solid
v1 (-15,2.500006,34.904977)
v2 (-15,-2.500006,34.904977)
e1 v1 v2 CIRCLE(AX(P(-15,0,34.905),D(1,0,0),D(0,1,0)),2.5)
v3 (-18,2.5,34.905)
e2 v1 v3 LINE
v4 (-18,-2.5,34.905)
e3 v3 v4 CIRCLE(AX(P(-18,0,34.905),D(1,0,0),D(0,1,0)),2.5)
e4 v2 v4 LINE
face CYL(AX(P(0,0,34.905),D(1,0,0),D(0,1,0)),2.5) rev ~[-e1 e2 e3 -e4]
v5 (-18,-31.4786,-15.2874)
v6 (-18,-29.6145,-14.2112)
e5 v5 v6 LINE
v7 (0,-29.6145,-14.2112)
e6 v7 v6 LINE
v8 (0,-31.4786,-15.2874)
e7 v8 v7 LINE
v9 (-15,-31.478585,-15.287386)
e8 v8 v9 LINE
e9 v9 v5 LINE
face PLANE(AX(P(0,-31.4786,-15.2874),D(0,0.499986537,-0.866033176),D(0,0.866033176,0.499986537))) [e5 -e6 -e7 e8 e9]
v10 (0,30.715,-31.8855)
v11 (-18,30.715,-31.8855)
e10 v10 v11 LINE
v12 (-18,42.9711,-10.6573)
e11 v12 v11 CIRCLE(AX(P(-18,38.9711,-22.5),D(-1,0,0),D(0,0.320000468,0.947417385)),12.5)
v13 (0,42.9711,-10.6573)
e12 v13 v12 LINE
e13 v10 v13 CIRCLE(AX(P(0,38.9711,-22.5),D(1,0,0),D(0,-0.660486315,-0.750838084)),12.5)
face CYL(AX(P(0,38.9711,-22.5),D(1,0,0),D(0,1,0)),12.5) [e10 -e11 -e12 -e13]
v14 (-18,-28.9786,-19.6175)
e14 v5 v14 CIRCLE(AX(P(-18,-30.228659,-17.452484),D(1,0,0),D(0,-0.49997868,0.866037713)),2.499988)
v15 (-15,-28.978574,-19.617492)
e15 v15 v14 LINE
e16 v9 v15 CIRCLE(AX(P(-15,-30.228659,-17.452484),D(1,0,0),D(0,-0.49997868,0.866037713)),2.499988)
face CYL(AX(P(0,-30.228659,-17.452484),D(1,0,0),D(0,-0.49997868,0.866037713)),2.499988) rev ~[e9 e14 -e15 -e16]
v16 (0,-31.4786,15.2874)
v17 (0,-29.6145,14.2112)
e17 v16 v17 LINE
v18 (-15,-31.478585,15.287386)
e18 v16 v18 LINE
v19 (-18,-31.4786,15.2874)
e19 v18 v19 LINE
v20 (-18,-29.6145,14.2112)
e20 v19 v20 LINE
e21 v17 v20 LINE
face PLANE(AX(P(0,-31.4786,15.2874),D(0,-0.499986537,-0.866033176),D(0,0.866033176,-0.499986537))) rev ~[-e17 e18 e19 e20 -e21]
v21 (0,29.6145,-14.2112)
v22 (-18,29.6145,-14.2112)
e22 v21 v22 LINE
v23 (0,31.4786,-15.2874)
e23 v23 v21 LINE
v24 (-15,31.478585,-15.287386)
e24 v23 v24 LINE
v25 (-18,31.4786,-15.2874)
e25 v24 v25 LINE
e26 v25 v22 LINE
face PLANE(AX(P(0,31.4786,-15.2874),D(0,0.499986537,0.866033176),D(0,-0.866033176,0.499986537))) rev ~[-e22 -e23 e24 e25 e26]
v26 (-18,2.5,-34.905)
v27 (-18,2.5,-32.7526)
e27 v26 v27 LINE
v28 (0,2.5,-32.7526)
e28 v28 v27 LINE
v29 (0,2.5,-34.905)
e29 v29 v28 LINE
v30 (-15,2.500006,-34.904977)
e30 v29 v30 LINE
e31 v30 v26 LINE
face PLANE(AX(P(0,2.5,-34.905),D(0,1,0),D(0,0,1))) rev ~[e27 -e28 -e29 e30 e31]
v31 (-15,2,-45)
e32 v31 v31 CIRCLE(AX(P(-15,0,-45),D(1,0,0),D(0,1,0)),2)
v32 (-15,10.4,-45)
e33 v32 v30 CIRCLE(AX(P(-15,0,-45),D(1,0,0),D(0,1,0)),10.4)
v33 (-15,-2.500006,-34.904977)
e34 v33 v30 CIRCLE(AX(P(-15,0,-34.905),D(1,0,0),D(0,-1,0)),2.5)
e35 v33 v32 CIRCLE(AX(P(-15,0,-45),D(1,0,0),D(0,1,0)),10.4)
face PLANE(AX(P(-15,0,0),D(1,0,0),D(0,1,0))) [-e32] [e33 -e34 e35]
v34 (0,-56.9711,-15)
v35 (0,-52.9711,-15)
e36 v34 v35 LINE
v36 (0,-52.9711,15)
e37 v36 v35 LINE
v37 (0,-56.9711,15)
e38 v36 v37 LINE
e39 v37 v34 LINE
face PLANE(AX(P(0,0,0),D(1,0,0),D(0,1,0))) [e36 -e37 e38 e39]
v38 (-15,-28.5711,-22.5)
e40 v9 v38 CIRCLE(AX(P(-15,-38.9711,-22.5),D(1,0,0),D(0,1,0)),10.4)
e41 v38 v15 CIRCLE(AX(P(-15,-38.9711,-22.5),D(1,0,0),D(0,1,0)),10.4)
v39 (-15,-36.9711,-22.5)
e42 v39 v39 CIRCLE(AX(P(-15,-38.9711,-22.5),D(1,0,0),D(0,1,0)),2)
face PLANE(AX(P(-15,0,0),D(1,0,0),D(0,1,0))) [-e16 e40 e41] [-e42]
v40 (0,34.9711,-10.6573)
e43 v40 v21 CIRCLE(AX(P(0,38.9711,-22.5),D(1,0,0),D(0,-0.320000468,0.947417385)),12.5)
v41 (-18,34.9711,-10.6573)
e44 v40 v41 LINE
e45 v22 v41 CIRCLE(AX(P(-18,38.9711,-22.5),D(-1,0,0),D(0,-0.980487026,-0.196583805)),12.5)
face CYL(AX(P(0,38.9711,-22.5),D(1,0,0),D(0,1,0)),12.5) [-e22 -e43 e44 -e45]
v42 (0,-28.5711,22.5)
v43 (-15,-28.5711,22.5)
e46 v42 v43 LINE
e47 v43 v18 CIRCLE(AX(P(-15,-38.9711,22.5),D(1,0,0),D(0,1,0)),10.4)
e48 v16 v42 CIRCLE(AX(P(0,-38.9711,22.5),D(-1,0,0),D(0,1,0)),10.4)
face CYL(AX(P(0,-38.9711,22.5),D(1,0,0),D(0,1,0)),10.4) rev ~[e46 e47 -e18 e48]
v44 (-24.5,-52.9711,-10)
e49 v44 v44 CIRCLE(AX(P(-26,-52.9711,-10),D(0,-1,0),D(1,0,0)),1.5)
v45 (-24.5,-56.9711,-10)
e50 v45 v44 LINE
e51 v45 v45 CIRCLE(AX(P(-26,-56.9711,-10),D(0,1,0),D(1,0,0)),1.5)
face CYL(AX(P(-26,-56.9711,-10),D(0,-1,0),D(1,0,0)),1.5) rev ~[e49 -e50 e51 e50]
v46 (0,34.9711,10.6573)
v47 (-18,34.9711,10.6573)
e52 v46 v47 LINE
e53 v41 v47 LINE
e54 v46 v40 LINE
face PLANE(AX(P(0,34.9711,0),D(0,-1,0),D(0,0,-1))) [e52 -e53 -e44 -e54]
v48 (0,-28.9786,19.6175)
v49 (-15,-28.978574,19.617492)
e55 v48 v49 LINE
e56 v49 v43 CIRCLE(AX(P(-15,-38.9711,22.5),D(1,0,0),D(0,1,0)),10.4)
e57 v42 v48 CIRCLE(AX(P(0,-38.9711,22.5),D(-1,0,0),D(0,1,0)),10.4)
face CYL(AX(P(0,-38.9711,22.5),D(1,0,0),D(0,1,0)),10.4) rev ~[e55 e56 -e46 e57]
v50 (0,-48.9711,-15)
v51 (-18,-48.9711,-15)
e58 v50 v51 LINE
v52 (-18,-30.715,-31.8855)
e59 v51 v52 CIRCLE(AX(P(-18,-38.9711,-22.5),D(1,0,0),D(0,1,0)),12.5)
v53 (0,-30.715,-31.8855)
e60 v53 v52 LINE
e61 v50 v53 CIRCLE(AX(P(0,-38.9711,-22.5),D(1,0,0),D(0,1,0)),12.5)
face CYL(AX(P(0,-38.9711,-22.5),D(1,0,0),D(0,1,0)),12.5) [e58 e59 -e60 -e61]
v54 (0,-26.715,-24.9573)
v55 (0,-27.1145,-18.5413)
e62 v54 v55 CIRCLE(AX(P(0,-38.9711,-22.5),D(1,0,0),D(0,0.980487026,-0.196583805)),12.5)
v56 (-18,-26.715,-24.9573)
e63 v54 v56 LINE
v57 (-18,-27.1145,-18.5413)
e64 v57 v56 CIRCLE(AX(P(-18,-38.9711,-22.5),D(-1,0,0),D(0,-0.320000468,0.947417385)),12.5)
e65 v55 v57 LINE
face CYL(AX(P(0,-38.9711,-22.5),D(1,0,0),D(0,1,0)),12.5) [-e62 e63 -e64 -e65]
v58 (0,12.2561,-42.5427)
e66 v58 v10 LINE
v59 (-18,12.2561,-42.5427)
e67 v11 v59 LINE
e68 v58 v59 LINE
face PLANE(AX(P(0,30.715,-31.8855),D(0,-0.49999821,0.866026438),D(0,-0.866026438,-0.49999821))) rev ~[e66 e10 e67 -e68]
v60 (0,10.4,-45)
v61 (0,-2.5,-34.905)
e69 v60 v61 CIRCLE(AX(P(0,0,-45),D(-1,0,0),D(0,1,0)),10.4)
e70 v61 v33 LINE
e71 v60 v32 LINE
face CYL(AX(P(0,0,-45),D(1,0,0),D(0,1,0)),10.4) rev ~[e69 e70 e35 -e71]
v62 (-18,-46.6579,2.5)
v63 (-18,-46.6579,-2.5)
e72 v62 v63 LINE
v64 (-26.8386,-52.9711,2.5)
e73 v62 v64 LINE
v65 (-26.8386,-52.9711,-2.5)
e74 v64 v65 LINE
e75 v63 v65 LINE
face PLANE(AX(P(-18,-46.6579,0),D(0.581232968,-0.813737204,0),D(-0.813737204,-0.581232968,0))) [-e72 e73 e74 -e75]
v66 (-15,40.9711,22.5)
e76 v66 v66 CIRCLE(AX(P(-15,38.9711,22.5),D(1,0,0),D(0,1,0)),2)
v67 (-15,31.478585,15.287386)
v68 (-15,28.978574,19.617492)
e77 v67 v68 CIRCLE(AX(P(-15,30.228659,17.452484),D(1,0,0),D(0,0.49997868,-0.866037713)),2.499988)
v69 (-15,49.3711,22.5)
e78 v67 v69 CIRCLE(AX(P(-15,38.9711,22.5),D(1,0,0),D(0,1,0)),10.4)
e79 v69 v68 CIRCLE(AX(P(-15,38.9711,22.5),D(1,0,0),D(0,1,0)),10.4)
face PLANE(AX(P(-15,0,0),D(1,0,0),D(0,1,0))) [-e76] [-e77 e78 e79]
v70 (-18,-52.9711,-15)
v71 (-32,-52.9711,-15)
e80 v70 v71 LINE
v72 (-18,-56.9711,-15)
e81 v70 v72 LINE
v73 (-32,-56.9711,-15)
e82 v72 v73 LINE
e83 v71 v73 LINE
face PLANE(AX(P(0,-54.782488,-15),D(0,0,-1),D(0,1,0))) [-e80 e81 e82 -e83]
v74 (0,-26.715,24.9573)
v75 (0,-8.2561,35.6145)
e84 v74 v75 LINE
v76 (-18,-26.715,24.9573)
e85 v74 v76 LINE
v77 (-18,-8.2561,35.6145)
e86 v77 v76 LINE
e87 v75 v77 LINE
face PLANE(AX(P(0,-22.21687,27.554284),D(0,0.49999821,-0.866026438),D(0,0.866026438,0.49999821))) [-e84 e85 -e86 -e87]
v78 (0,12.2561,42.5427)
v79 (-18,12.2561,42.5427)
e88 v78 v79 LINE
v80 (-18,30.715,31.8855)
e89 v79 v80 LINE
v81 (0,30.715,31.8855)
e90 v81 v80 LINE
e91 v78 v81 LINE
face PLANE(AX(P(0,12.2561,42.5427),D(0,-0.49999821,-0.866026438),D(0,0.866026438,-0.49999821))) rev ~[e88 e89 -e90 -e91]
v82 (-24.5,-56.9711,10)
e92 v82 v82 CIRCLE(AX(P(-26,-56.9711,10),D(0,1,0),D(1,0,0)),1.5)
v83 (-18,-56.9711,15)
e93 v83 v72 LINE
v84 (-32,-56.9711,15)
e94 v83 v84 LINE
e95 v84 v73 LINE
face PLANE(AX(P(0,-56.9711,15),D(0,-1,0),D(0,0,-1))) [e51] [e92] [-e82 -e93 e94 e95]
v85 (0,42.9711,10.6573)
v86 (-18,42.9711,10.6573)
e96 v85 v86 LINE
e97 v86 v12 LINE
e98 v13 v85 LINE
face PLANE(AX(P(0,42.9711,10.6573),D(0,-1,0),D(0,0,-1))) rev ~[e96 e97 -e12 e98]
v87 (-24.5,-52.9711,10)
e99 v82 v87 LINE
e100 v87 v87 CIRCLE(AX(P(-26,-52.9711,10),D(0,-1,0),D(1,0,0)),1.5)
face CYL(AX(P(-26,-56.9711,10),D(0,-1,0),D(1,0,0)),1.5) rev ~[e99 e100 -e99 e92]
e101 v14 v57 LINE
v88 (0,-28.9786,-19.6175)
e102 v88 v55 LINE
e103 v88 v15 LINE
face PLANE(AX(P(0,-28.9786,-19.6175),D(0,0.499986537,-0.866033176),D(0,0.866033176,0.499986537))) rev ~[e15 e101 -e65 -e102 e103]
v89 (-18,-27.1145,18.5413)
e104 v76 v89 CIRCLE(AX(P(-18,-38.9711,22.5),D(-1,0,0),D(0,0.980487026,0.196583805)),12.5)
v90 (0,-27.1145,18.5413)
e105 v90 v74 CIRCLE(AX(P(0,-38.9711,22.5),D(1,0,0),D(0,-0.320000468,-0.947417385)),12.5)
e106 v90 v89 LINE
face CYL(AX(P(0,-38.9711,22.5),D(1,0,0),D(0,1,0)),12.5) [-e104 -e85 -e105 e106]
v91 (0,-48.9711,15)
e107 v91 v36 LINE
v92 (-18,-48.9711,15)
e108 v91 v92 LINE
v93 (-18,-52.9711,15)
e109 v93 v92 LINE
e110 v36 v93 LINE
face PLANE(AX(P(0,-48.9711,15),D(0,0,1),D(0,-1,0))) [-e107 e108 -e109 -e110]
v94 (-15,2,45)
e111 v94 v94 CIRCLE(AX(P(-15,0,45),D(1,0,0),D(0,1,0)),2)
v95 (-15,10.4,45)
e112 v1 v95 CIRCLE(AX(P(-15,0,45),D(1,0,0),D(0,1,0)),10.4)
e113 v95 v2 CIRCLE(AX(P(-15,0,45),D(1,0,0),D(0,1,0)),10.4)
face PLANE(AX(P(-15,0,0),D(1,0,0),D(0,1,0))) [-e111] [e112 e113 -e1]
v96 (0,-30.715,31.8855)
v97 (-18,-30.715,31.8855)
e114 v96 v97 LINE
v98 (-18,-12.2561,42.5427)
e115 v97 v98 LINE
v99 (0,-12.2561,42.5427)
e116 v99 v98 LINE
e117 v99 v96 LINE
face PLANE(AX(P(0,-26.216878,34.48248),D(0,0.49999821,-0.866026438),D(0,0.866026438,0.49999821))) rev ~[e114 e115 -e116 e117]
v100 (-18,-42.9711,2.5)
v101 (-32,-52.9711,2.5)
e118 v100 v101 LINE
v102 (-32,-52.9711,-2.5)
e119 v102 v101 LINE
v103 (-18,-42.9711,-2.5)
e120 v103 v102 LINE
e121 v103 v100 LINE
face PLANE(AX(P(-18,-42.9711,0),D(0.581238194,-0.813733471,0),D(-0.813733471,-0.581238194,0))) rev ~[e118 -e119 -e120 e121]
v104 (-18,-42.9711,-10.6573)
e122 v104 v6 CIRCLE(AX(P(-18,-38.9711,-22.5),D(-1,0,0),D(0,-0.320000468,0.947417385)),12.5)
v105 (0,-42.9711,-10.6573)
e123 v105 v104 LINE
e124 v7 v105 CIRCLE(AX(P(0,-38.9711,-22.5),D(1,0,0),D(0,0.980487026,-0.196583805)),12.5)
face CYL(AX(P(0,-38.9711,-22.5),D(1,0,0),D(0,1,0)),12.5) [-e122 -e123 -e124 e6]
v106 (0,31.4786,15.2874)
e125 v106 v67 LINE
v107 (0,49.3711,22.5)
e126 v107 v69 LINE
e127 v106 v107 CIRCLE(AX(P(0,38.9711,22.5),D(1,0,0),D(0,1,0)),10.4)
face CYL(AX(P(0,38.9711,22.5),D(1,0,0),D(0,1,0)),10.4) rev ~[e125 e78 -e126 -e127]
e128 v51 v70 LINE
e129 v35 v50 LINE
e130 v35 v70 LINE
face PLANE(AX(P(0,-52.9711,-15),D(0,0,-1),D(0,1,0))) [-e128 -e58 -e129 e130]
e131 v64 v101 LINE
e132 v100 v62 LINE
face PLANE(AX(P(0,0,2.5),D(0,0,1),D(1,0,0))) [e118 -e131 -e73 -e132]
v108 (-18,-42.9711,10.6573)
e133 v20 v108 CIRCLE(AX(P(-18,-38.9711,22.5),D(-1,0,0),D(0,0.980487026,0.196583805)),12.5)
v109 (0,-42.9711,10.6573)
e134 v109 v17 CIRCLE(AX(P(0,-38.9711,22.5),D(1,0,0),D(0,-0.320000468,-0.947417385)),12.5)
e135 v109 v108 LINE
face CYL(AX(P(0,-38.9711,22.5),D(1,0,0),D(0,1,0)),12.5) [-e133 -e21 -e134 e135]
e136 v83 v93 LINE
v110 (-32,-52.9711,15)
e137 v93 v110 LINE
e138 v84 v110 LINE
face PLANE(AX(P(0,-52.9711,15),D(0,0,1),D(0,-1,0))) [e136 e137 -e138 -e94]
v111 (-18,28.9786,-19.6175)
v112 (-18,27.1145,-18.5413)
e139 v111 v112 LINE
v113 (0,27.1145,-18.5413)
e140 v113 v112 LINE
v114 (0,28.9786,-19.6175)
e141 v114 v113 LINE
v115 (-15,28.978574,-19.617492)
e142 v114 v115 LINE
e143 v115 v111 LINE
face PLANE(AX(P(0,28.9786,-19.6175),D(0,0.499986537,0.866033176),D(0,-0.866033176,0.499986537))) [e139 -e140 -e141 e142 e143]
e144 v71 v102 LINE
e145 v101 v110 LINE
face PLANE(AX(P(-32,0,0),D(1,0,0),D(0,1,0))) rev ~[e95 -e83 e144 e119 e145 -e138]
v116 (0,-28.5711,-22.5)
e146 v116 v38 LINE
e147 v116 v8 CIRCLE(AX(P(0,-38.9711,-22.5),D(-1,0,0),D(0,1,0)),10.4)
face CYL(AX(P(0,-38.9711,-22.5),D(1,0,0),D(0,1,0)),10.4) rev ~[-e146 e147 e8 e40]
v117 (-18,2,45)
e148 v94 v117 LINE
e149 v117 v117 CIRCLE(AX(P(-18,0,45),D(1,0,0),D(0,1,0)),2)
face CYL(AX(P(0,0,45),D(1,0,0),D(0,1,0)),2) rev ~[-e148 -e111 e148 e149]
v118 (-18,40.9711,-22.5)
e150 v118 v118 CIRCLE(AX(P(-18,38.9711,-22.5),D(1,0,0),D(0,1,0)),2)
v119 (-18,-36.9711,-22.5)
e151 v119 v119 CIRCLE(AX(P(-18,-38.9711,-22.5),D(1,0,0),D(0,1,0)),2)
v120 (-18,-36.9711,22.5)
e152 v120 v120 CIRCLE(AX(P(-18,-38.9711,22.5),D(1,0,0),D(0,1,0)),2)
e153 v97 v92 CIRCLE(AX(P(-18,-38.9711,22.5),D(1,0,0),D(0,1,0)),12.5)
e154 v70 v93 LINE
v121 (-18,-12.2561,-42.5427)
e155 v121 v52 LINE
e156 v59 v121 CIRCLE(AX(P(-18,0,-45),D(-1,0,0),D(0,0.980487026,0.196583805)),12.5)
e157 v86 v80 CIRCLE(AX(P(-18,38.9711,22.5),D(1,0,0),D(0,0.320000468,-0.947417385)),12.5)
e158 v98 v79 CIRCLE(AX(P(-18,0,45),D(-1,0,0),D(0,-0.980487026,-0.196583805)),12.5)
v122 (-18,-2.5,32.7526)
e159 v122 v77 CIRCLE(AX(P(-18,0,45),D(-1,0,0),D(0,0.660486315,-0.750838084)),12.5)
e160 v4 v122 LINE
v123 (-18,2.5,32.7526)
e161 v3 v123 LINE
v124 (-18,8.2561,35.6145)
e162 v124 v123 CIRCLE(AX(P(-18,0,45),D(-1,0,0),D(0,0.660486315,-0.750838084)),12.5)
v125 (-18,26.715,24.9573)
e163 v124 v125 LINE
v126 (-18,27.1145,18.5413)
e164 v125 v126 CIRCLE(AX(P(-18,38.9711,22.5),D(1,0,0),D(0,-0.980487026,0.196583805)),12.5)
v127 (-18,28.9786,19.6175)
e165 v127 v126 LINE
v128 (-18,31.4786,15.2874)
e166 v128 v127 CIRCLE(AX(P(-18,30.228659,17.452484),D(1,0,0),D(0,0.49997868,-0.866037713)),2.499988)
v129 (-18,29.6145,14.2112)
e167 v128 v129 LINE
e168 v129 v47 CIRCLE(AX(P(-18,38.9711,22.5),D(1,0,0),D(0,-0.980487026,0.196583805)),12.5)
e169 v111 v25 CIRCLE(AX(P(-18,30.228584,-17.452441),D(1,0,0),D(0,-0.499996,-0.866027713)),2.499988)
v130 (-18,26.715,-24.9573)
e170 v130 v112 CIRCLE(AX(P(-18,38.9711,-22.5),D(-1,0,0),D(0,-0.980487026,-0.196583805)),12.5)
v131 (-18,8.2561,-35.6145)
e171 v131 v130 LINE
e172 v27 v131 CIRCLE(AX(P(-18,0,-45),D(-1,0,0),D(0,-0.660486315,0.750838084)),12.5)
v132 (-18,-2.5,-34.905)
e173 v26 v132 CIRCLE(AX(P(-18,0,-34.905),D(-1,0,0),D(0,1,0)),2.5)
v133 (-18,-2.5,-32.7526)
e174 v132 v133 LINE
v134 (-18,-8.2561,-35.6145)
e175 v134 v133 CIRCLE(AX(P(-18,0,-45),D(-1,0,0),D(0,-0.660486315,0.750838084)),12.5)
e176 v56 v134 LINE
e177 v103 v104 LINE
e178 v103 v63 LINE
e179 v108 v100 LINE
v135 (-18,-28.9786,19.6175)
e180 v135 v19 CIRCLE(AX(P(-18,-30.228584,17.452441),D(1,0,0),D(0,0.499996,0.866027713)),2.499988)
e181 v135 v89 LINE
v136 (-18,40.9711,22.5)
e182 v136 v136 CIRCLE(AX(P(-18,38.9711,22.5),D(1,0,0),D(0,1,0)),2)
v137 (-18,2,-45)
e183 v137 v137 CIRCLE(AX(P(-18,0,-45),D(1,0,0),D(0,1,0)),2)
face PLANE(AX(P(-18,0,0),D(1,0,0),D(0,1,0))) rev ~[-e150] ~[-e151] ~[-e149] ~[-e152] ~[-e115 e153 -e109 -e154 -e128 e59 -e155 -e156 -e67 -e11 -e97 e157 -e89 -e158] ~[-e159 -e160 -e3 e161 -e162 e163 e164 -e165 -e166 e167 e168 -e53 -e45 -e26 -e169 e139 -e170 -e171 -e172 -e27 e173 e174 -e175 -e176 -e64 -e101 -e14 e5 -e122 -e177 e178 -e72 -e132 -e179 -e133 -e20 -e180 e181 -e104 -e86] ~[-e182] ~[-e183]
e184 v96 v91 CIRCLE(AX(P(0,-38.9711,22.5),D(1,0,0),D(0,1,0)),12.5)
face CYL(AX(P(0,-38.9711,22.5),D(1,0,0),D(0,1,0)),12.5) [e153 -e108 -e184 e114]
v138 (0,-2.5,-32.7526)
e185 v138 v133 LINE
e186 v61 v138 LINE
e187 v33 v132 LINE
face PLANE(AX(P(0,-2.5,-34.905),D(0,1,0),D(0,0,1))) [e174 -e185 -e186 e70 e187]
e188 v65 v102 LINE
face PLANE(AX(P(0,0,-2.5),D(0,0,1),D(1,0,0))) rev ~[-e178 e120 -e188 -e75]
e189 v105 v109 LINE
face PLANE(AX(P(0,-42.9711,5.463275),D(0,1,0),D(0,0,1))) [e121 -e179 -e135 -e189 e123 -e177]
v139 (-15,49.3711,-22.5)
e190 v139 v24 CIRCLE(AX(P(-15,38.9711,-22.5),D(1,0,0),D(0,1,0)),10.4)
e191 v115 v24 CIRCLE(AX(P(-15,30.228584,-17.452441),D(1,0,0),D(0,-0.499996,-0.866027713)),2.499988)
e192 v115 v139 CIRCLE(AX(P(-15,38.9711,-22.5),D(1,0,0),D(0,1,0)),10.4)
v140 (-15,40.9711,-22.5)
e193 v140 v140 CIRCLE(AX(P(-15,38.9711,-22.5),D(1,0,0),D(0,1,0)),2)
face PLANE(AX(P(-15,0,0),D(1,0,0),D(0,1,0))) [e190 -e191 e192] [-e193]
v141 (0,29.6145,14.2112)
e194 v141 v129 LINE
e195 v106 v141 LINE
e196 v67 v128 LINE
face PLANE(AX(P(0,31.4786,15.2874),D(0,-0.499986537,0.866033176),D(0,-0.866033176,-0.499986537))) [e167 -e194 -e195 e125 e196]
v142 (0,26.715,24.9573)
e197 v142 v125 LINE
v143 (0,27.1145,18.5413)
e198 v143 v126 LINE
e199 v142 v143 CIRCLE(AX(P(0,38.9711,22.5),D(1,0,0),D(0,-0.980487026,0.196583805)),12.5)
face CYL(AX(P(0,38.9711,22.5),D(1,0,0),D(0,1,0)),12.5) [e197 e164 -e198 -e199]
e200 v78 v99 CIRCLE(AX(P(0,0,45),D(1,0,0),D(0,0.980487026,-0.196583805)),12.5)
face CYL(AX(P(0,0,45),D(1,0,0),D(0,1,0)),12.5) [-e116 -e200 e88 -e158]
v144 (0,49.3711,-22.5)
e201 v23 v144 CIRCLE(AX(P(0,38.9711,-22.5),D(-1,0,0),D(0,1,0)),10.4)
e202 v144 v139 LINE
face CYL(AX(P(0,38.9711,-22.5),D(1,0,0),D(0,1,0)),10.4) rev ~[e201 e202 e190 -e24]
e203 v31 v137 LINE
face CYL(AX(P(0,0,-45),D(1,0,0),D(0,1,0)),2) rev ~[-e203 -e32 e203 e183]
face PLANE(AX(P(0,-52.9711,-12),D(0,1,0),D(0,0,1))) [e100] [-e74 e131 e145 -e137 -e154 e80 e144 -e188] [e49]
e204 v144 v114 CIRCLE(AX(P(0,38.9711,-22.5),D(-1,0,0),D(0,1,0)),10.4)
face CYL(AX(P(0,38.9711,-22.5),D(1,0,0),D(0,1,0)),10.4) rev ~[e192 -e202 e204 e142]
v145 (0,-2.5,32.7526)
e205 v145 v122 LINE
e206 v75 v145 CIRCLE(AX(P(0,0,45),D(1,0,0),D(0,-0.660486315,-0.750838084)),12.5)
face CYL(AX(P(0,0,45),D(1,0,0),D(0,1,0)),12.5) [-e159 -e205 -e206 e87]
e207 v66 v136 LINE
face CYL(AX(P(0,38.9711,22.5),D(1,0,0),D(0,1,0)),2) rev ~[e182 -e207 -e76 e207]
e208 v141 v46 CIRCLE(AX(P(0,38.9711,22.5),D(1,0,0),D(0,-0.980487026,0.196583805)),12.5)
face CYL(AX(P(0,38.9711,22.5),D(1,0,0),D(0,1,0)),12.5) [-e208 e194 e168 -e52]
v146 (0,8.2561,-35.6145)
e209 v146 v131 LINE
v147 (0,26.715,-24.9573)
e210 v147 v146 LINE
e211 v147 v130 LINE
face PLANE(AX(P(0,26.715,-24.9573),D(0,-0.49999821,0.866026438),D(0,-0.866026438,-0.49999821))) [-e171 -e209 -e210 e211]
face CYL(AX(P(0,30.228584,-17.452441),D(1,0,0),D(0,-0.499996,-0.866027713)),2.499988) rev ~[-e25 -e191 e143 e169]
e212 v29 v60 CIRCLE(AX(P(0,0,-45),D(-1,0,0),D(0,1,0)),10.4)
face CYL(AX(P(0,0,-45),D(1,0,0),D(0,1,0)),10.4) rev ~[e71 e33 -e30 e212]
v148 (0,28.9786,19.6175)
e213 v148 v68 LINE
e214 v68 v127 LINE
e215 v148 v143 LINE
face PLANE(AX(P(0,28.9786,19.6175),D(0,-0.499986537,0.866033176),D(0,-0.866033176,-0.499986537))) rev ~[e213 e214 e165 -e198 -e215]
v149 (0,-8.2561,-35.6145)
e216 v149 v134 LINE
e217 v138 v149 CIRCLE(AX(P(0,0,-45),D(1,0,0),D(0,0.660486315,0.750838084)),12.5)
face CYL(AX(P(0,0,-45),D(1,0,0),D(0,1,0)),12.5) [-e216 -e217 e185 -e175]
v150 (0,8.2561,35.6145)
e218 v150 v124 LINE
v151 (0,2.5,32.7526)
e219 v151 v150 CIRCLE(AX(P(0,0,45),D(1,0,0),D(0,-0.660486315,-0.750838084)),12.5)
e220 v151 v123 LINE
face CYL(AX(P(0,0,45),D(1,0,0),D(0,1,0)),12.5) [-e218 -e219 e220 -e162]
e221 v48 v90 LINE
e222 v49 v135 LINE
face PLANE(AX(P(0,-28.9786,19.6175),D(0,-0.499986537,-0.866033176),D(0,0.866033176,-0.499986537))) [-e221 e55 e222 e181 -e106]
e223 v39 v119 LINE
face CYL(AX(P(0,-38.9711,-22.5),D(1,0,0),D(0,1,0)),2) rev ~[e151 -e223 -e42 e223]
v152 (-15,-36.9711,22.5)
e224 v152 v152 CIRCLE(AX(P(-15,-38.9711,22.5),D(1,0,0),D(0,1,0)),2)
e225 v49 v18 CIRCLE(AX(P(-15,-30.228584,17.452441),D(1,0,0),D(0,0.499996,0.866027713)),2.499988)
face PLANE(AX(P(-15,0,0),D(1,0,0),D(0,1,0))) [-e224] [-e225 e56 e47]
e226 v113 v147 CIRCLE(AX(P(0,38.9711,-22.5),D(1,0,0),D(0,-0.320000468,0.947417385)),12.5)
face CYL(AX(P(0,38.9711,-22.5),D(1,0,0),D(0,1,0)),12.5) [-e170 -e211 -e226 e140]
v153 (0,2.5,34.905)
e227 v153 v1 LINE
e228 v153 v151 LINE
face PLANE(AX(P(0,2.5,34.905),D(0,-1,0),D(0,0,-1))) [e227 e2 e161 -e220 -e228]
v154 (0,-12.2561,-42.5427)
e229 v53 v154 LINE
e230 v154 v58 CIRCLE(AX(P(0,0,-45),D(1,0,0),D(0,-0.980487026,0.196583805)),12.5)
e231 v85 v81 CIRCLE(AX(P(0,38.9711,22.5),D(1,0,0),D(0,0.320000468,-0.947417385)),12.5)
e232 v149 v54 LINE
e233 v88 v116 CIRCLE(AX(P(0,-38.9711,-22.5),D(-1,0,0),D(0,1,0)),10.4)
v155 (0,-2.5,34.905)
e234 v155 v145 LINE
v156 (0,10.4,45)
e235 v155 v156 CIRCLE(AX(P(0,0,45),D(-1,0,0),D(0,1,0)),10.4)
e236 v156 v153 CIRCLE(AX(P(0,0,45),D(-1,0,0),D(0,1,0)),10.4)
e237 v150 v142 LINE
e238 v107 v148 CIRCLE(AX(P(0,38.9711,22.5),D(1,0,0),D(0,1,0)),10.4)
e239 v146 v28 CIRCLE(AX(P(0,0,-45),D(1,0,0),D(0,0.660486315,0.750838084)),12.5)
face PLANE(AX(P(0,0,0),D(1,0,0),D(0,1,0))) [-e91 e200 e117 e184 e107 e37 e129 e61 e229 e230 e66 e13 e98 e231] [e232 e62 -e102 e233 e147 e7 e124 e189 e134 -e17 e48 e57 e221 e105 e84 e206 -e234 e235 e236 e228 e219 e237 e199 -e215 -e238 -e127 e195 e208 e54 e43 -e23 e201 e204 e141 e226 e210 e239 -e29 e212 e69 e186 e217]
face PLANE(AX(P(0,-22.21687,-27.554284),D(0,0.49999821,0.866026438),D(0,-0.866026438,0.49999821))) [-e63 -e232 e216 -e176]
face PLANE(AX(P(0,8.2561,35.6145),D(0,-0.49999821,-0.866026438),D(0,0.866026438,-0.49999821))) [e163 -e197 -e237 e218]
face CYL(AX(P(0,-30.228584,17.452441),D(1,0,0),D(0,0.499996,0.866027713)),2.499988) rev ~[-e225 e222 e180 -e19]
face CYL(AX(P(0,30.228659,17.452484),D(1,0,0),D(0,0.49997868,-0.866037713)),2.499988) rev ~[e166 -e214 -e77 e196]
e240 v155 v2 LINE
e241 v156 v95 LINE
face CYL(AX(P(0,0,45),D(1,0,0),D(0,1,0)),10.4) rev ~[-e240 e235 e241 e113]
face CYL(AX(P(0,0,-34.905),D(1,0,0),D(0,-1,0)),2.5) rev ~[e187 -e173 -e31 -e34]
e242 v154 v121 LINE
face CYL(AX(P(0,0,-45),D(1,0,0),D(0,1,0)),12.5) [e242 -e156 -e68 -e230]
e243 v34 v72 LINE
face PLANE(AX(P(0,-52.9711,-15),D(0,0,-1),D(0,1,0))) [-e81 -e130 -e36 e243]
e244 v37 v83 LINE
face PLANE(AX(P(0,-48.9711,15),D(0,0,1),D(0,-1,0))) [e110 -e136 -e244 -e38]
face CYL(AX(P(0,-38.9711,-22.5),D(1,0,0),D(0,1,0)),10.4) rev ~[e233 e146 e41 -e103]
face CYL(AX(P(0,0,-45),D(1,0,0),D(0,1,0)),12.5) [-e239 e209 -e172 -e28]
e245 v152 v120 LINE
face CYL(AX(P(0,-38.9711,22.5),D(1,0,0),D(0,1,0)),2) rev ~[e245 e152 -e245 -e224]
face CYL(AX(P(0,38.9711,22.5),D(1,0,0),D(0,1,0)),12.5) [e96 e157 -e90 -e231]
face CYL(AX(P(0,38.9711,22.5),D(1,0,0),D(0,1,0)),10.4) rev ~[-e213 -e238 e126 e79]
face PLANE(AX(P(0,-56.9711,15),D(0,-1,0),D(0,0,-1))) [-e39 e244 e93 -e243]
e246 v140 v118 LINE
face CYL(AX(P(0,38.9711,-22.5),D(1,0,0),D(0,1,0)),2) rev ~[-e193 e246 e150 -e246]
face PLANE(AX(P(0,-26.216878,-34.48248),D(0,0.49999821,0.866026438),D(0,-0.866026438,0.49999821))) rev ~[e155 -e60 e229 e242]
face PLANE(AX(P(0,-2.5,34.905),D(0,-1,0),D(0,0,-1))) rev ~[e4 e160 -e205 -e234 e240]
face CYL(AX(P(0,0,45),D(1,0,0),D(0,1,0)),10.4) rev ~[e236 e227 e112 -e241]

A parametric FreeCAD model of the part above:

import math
import FreeCAD as App
import Part
import Sketcher
from FreeCAD import Vector
Q = App.Units.Quantity


def add_polygon(sketch, points):
    """Adds a closed chain of lines whose ends are joined by coincident constraints."""
    first, n = sketch.GeometryCount, len(points)
    for a, b in zip(points, points[1:] + points[:1]):
        sketch.addGeometry(Part.LineSegment(App.Vector(*a, 0), App.Vector(*b, 0)), False)
    for i in range(n):
        sketch.addConstraint(Sketcher.Constraint("Coincident", first + i, 2, first + (i + 1) % n, 1))

doc = App.newDocument("Part")
body = doc.addObject("PartDesign::Body", "Body")

# Sketch on YZ plane
sketch1 = body.newObject("Sketcher::SketchObject", "Sketch")
sketch1.AttachmentSupport = (doc.getObject("YZ_Plane"), [""])
sketch1.MapMode = "FlatFace"
sketch1.addGeometry([
    Part.LineSegment(Vector(31, 32, 0), Vector(12, 43, 0)),  # 0
    Part.ArcOfCircle(Part.Circle(Vector(0, 45, 0), Vector(0, 0, 1), 12), math.radians(-11), math.radians(191)),  # 1
    Part.LineSegment(Vector(-12, 43, 0), Vector(-31, 32, 0)),  # 2
    Part.ArcOfCircle(Part.Circle(Vector(-39, 22, 0), Vector(0, 0, 1), 12), math.radians(49), math.radians(217)),  # 3
    Part.LineSegment(Vector(-49, 15, 0), Vector(-57, 15, 0)),  # 4
    Part.LineSegment(Vector(-57, 15, 0), Vector(-57, -15, 0)),  # 5
    Part.LineSegment(Vector(-57, -15, 0), Vector(-49, -15, 0)),  # 6
    Part.ArcOfCircle(Part.Circle(Vector(-39, -22, 0), Vector(0, 0, 1), 12), math.radians(143), math.radians(311)),  # 7
    Part.LineSegment(Vector(-31, -32, 0), Vector(-12, -43, 0)),  # 8
    Part.ArcOfCircle(Part.Circle(Vector(0, -45, 0), Vector(0, 0, 1), 12), math.radians(169), math.radians(371)),  # 9
    Part.LineSegment(Vector(12, -43, 0), Vector(31, -32, 0)),  # 10
    Part.ArcOfCircle(Part.Circle(Vector(39, -22, 0), Vector(0, 0, 1), 12), math.radians(-131), math.radians(71)),  # 11
    Part.LineSegment(Vector(43, -11, 0), Vector(43, 11, 0)),  # 12
    Part.ArcOfCircle(Part.Circle(Vector(39, 22, 0), Vector(0, 0, 1), 12), math.radians(-71), math.radians(131)),  # 13
    Part.ArcOfCircle(Part.Circle(Vector(39, 22, 0), Vector(0, 0, 1), 12), math.radians(169), math.radians(251)),  # 14
    Part.LineSegment(Vector(35, 11, 0), Vector(35, -11, 0)),  # 15
    Part.ArcOfCircle(Part.Circle(Vector(39, -22, 0), Vector(0, 0, 1), 12), math.radians(109), math.radians(191)),  # 16
    Part.LineSegment(Vector(27, -25, 0), Vector(8, -36, 0)),  # 17
    Part.ArcOfCircle(Part.Circle(Vector(0, -45, 0), Vector(0, 0, 1), 12), math.radians(49), math.radians(131)),  # 18
    Part.LineSegment(Vector(-8, -36, 0), Vector(-27, -25, 0)),  # 19
    Part.ArcOfCircle(Part.Circle(Vector(-39, -22, 0), Vector(0, 0, 1), 12), math.radians(-11), math.radians(109)),  # 20
    Part.LineSegment(Vector(-43, -11, 0), Vector(-43, 11, 0)),  # 21
    Part.ArcOfCircle(Part.Circle(Vector(-39, 22, 0), Vector(0, 0, 1), 12), math.radians(-109), math.radians(11)),  # 22
    Part.LineSegment(Vector(-27, 25, 0), Vector(-8, 36, 0)),  # 23
    Part.ArcOfCircle(Part.Circle(Vector(0, 45, 0), Vector(0, 0, 1), 12), math.radians(-131), math.radians(-49)),  # 24
    Part.LineSegment(Vector(8, 36, 0), Vector(27, 25, 0)),  # 25
], False)
sketch1.addConstraint([
    Sketcher.Constraint("Coincident", 0, 2, 1, 1),
    Sketcher.Constraint("Coincident", 1, 2, 2, 1),
    Sketcher.Constraint("Coincident", 2, 2, 3, 1),
    Sketcher.Constraint("Coincident", 3, 2, 4, 1),
    Sketcher.Constraint("Coincident", 4, 2, 5, 1),
    Sketcher.Constraint("Coincident", 5, 2, 6, 1),
    Sketcher.Constraint("Coincident", 6, 2, 7, 1),
    Sketcher.Constraint("Coincident", 7, 2, 8, 1),
    Sketcher.Constraint("Coincident", 8, 2, 9, 1),
    Sketcher.Constraint("Coincident", 9, 2, 10, 1),
    Sketcher.Constraint("Coincident", 10, 2, 11, 1),
    Sketcher.Constraint("Coincident", 11, 2, 12, 1),
    Sketcher.Constraint("Coincident", 12, 2, 13, 1),
    Sketcher.Constraint("Coincident", 13, 2, 0, 1),
    Sketcher.Constraint("Coincident", 14, 2, 15, 1),
    Sketcher.Constraint("Coincident", 15, 2, 16, 1),
    Sketcher.Constraint("Coincident", 16, 2, 17, 1),
    Sketcher.Constraint("Coincident", 17, 2, 18, 1),
    Sketcher.Constraint("Coincident", 18, 2, 19, 1),
    Sketcher.Constraint("Coincident", 19, 2, 20, 1),
    Sketcher.Constraint("Coincident", 20, 2, 21, 1),
    Sketcher.Constraint("Coincident", 21, 2, 22, 1),
    Sketcher.Constraint("Coincident", 22, 2, 23, 1),
    Sketcher.Constraint("Coincident", 23, 2, 24, 1),
    Sketcher.Constraint("Coincident", 24, 2, 25, 1),
    Sketcher.Constraint("Coincident", 25, 2, 14, 1),
    Sketcher.Constraint("Horizontal", 4),
    Sketcher.Constraint("Vertical", 5),
    Sketcher.Constraint("Horizontal", 6),
    Sketcher.Constraint("Vertical", 12),
    Sketcher.Constraint("Vertical", 15),
    Sketcher.Constraint("Vertical", 21),
    Sketcher.Constraint("Coincident", 14, 3, 13, 3),
    Sketcher.Constraint("Coincident", 16, 3, 11, 3),
    Sketcher.Constraint("Coincident", 18, 3, 9, 3),
    Sketcher.Constraint("Coincident", 20, 3, 7, 3),
    Sketcher.Constraint("Coincident", 22, 3, 3, 3),
    Sketcher.Constraint("Coincident", 24, 3, 1, 3),
    Sketcher.Constraint("Equal", 1, 3),
    Sketcher.Constraint("Equal", 3, 7),
    Sketcher.Constraint("Equal", 7, 9),
    Sketcher.Constraint("Equal", 9, 11),
    Sketcher.Constraint("Equal", 11, 13),
    Sketcher.Constraint("Equal", 13, 14),
    Sketcher.Constraint("Equal", 14, 16),
    Sketcher.Constraint("Equal", 16, 18),
    Sketcher.Constraint("Equal", 18, 20),
    Sketcher.Constraint("Equal", 20, 22),
    Sketcher.Constraint("Equal", 22, 24),
    Sketcher.Constraint("Symmetric", 1, 3, 9, 3, -1, 1),
    Sketcher.Constraint("Symmetric", 3, 3, 11, 3, -1, 1),
    Sketcher.Constraint("Symmetric", 7, 3, 13, 3, -1, 1),
    Sketcher.Constraint("Symmetric", 7, 3, 11, 3, -2),
    Sketcher.Constraint("Symmetric", 0, 2, 1, 2, -2),
    Sketcher.Constraint("Parallel", 0, 8),
    Sketcher.Constraint("Parallel", 2, 10),
    Sketcher.Constraint("Parallel", 10, 17),
    Sketcher.Constraint("Parallel", 8, 19),
    Sketcher.Constraint("Parallel", 17, 23),
    Sketcher.Constraint("Parallel", 19, 25),
    Sketcher.Constraint("Horizontal", 8, 2, 9, 2),
    Sketcher.Constraint("Horizontal", 7, 2, 10, 2),
    Sketcher.Constraint("Horizontal", 12, 2, 14, 2),
    Sketcher.Constraint("Horizontal", 17, 2, 18, 2),
    Sketcher.Constraint("Horizontal", 15, 2, 20, 2),
    Sketcher.Constraint("Horizontal", 23, 2, 24, 2),
    Sketcher.Constraint("Vertical", 3, 2, 6, 2),
    Sketcher.Constraint("Vertical", 2, 2, 7, 2),
    Sketcher.Constraint("Vertical", 19, 2, 22, 2),
    Sketcher.Constraint("Equal", 10, 17),
    Sketcher.Constraint("Radius", 1, Q("12.5 mm")),
    Sketcher.Constraint("DistanceX", 4, 2, 4, 1, Q("8 mm")),
    Sketcher.Constraint("DistanceY", 5, 2, 5, 1, Q("30 mm")),
    Sketcher.Constraint("Angle", 8, Q("-30 deg")),
    Sketcher.Constraint("DistanceY", -1, 1, 1, 3, Q("45 mm")),
    Sketcher.Constraint("DistanceY", 7, 3, 3, 3, Q("45 mm")),
    Sketcher.Constraint("DistanceX", 11, 3, 11, 2, Q("4 mm")),
    Sketcher.Constraint("DistanceX", 16, 2, 10, 2, Q("4 mm")),
    Sketcher.Constraint("DistanceY", 16, 2, 15, 2, Q("14.3 mm")),
])
pad1 = body.newObject("PartDesign::Pad", "Pad")
pad1.Profile = sketch1
pad1.Length = 18
pad1.Reversed = True

# Sketch on YZ plane
sketch2 = body.newObject("Sketcher::SketchObject", "Sketch001")
sketch2.AttachmentSupport = (doc.getObject("YZ_Plane"), [""])
sketch2.MapMode = "FlatFace"
sketch2.addGeometry([
    Part.Circle(Vector(39, 22, 0), Vector(0, 0, 1), 10),  # 0
    Part.Circle(Vector(0, 45, 0), Vector(0, 0, 1), 10),  # 1
    Part.Circle(Vector(39, -22, 0), Vector(0, 0, 1), 10),  # 2
    Part.Circle(Vector(0, -45, 0), Vector(0, 0, 1), 10),  # 3
    Part.Circle(Vector(-39, -22, 0), Vector(0, 0, 1), 10),  # 4
    Part.Circle(Vector(-39, 22, 0), Vector(0, 0, 1), 10),  # 5
], False)
sketch2.addConstraint([
    Sketcher.Constraint("Equal", 0, 1),
    Sketcher.Constraint("Equal", 1, 2),
    Sketcher.Constraint("Equal", 2, 3),
    Sketcher.Constraint("Equal", 3, 4),
    Sketcher.Constraint("Equal", 4, 5),
    Sketcher.Constraint("Symmetric", 1, 3, 3, 3, -1, 1),
    Sketcher.Constraint("Symmetric", 0, 3, 4, 3, -1, 1),
    Sketcher.Constraint("Symmetric", 2, 3, 5, 3, -1, 1),
    Sketcher.Constraint("Symmetric", 2, 3, 4, 3, -2),
    Sketcher.Constraint("PointOnObject", 1, 3, -2),
    Sketcher.Constraint("Diameter", 0, Q("20.8 mm")),
    Sketcher.Constraint("DistanceY", -1, 1, 1, 3, Q("45 mm")),
    Sketcher.Constraint("DistanceY", 2, 3, 0, 3, Q("45 mm")),
    Sketcher.Constraint("DistanceX", -1, 1, 0, 3, Q("38.971 mm")),
])
pocket1 = body.newObject("PartDesign::Pocket", "Pocket")
pocket1.Profile = sketch2
pocket1.Length = 15

# Sketch on YZ plane
sketch3 = body.newObject("Sketcher::SketchObject", "Sketch002")
sketch3.AttachmentSupport = (doc.getObject("YZ_Plane"), [""])
sketch3.MapMode = "FlatFace"
sketch3.addGeometry([
    Part.Circle(Vector(39, 22.5, 0), Vector(0, 0, 1), 2),  # 0
    Part.ArcOfCircle(Part.Circle(Vector(30.2, 17.5, 0), Vector(0, 0, 1), 2.5), math.radians(-60), math.radians(120)),  # 1
    Part.LineSegment(Vector(29, 19.6, 0), Vector(27.1, 18.5, 0)),  # 2
    Part.ArcOfCircle(Part.Circle(Vector(39, 22.5, 0), Vector(0, 0, 1), 12.5), math.radians(-162), math.radians(-138)),  # 3
    Part.LineSegment(Vector(29.6, 14.2, 0), Vector(31.5, 15.3, 0)),  # 4
    Part.Circle(Vector(0, 45, 0), Vector(0, 0, 1), 2),  # 5
    Part.LineSegment(Vector(2.5, 32.8, 0), Vector(2.5, 34.9, 0)),  # 6
    Part.ArcOfCircle(Part.Circle(Vector(0, 34.9, 0), Vector(0, 0, 1), 2.5), math.radians(0), math.radians(180)),  # 7
    Part.LineSegment(Vector(-2.5, 34.9, 0), Vector(-2.5, 32.8, 0)),  # 8
    Part.ArcOfCircle(Part.Circle(Vector(0, 45, 0), Vector(0, 0, 1), 12.5), math.radians(-102), math.radians(-78)),  # 9
    Part.ArcOfCircle(Part.Circle(Vector(0, -45, 0), Vector(0, 0, 1), 12.5), math.radians(78), math.radians(102)),  # 10
    Part.LineSegment(Vector(-2.5, -32.8, 0), Vector(-2.5, -34.9, 0)),  # 11
    Part.ArcOfCircle(Part.Circle(Vector(0, -34.9, 0), Vector(0, 0, 1), 2.5), math.radians(180), math.radians(360)),  # 12
    Part.LineSegment(Vector(2.5, -34.9, 0), Vector(2.5, -32.8, 0)),  # 13
    Part.Circle(Vector(39, -22.5, 0), Vector(0, 0, 1), 2),  # 14
    Part.ArcOfCircle(Part.Circle(Vector(30.2, -17.5, 0), Vector(0, 0, 1), 2.5), math.radians(-120), math.radians(60)),  # 15
    Part.LineSegment(Vector(31.5, -15.3, 0), Vector(29.6, -14.2, 0)),  # 16
    Part.ArcOfCircle(Part.Circle(Vector(39, -22.5, 0), Vector(0, 0, 1), 12.5), math.radians(138), math.radians(162)),  # 17
    Part.LineSegment(Vector(27.1, -18.5, 0), Vector(29, -19.6, 0)),  # 18
    Part.ArcOfCircle(Part.Circle(Vector(-39, -22.5, 0), Vector(0, 0, 1), 12.5), math.radians(18), math.radians(42)),  # 19
    Part.LineSegment(Vector(-29.6, -14.2, 0), Vector(-31.5, -15.3, 0)),  # 20
    Part.ArcOfCircle(Part.Circle(Vector(-30.2, -17.5, 0), Vector(0, 0, 1), 2.5), math.radians(120), math.radians(300)),  # 21
    Part.LineSegment(Vector(-29, -19.6, 0), Vector(-27.1, -18.5, 0)),  # 22
    Part.LineSegment(Vector(-31.5, 15.3, 0), Vector(-29.6, 14.2, 0)),  # 23
    Part.ArcOfCircle(Part.Circle(Vector(-39, 22.5, 0), Vector(0, 0, 1), 12.5), math.radians(-42), math.radians(-18)),  # 24
    Part.LineSegment(Vector(-27.1, 18.5, 0), Vector(-29, 19.6, 0)),  # 25
    Part.ArcOfCircle(Part.Circle(Vector(-30.2, 17.5, 0), Vector(0, 0, 1), 2.5), math.radians(60), math.radians(240)),  # 26
    Part.Circle(Vector(0, -45, 0), Vector(0, 0, 1), 2),  # 27
    Part.Circle(Vector(-39, -22.5, 0), Vector(0, 0, 1), 2),  # 28
    Part.Circle(Vector(-39, 22.5, 0), Vector(0, 0, 1), 2),  # 29
], False)
sketch3.addConstraint([
    Sketcher.Constraint("Tangent", 1, 2, 2, 1),
    Sketcher.Constraint("Coincident", 2, 2, 3, 1),
    Sketcher.Constraint("Coincident", 3, 2, 4, 1),
    Sketcher.Constraint("Tangent", 4, 2, 1, 1),
    Sketcher.Constraint("Tangent", 6, 2, 7, 1),
    Sketcher.Constraint("Tangent", 7, 2, 8, 1),
    Sketcher.Constraint("Coincident", 8, 2, 9, 1),
    Sketcher.Constraint("Coincident", 9, 2, 6, 1),
    Sketcher.Constraint("Coincident", 10, 2, 11, 1),
    Sketcher.Constraint("Tangent", 11, 2, 12, 1),
    Sketcher.Constraint("Tangent", 12, 2, 13, 1),
    Sketcher.Constraint("Coincident", 13, 2, 10, 1),
    Sketcher.Constraint("Tangent", 15, 2, 16, 1),
    Sketcher.Constraint("Coincident", 16, 2, 17, 1),
    Sketcher.Constraint("Coincident", 17, 2, 18, 1),
    Sketcher.Constraint("Tangent", 18, 2, 15, 1),
    Sketcher.Constraint("Coincident", 19, 2, 20, 1),
    Sketcher.Constraint("Tangent", 20, 2, 21, 1),
    Sketcher.Constraint("Tangent", 21, 2, 22, 1),
    Sketcher.Constraint("Coincident", 22, 2, 19, 1),
    Sketcher.Constraint("Coincident", 23, 2, 24, 1),
    Sketcher.Constraint("Coincident", 24, 2, 25, 1),
    Sketcher.Constraint("Tangent", 25, 2, 26, 1),
    Sketcher.Constraint("Tangent", 26, 2, 23, 1),
    Sketcher.Constraint("Vertical", 6),
    Sketcher.Constraint("Vertical", 8),
    Sketcher.Constraint("Vertical", 11),
    Sketcher.Constraint("Vertical", 13),
    Sketcher.Constraint("Coincident", 3, 3, 0, 3),
    Sketcher.Constraint("Coincident", 9, 3, 5, 3),
    Sketcher.Constraint("Coincident", 17, 3, 14, 3),
    Sketcher.Constraint("Coincident", 27, 3, 10, 3),
    Sketcher.Constraint("Coincident", 28, 3, 19, 3),
    Sketcher.Constraint("Coincident", 29, 3, 24, 3),
    Sketcher.Constraint("Equal", 0, 5),
    Sketcher.Constraint("Equal", 1, 7),
    Sketcher.Constraint("Equal", 3, 9),
    Sketcher.Constraint("Equal", 9, 10),
    Sketcher.Constraint("Equal", 7, 12),
    Sketcher.Constraint("Equal", 5, 14),
    Sketcher.Constraint("Equal", 12, 15),
    Sketcher.Constraint("Equal", 10, 17),
    Sketcher.Constraint("Equal", 17, 19),
    Sketcher.Constraint("Equal", 15, 21),
    Sketcher.Constraint("Equal", 19, 24),
    Sketcher.Constraint("Equal", 21, 26),
    Sketcher.Constraint("Equal", 14, 27),
    Sketcher.Constraint("Equal", 27, 28),
    Sketcher.Constraint("Equal", 28, 29),
    Sketcher.Constraint("Symmetric", 5, 3, 10, 3, -1, 1),
    Sketcher.Constraint("Symmetric", 7, 3, 12, 3, -1, 1),
    Sketcher.Constraint("Symmetric", 0, 3, 19, 3, -1, 1),
    Sketcher.Constraint("Symmetric", 1, 3, 21, 3, -1, 1),
    Sketcher.Constraint("Symmetric", 14, 3, 24, 3, -1, 1),
    Sketcher.Constraint("Symmetric", 15, 3, 26, 3, -1, 1),
    Sketcher.Constraint("Symmetric", 14, 3, 19, 3, -2),
    Sketcher.Constraint("Symmetric", 15, 3, 21, 3, -2),
    Sketcher.Constraint("Symmetric", 8, 2, 9, 2, -2),
    Sketcher.Constraint("Parallel", 2, 4),
    Sketcher.Constraint("Parallel", 16, 18),
    Sketcher.Constraint("Parallel", 4, 20),
    Sketcher.Constraint("Parallel", 20, 22),
    Sketcher.Constraint("Parallel", 18, 23),
    Sketcher.Constraint("Parallel", 23, 25),
    Sketcher.Constraint("Horizontal", 16, 2, 19, 2),
    Sketcher.Constraint("Equal", 2, 4),
    Sketcher.Constraint("Diameter", 0, Q("4 mm")),
    Sketcher.Constraint("Radius", 1, Q("2.5 mm")),
    Sketcher.Constraint("Radius", 3, Q("12.5 mm")),
    Sketcher.Constraint("DistanceY", -1, 1, 5, 3, Q("45 mm")),
    Sketcher.Constraint("DistanceY", 14, 3, 0, 3, Q("45 mm")),
    Sketcher.Constraint("DistanceX", 2, 2, 3, 2, Q("2.5 mm")),
    Sketcher.Constraint("DistanceY", 10, 2, 21, 3, Q("15.3 mm")),
    Sketcher.Constraint("DistanceY", 12, 3, 7, 3, Q("69.81 mm")),
    Sketcher.Constraint("DistanceX", -1, 1, 0, 3, Q("38.971 mm")),
])
pocket2 = body.newObject("PartDesign::Pocket", "Pocket001")
pocket2.Profile = sketch3
pocket2.Length = 18

# Sketch on YZ plane
sketch4 = body.newObject("Sketcher::SketchObject", "Sketch003")
sketch4.AttachmentSupport = (doc.getObject("YZ_Plane"), [""])
sketch4.MapMode = "FlatFace"
add_polygon(sketch4, [(-53, 15), (-57, 15), (-57, -15), (-53, -15)])  # lines 0-3
sketch4.addConstraint([
    Sketcher.Constraint("Horizontal", 0),
    Sketcher.Constraint("Vertical", 1),
    Sketcher.Constraint("Horizontal", 2),
    Sketcher.Constraint("Vertical", 3),
    Sketcher.Constraint("DistanceX", 0, 2, 0, 1, Q("4 mm")),
    Sketcher.Constraint("DistanceY", 1, 2, 1, 1, Q("30 mm")),
    Sketcher.Constraint("DistanceY", -1, 1, 0, 2, Q("15 mm")),
    Sketcher.Constraint("DistanceX", 0, 2, -1, 1, Q("56.971 mm")),
])
pad2 = body.newObject("PartDesign::Pad", "Pad001")
pad2.Profile = sketch4
pad2.Length = 32
pad2.Reversed = True

# Sketch on XY plane
sketch5 = body.newObject("Sketcher::SketchObject", "Sketch004")
sketch5.AttachmentSupport = (doc.getObject("XY_Plane"), [""])
sketch5.MapMode = "FlatFace"
add_polygon(sketch5, [(-18, -46.7), (-18, -43), (-32, -53), (-26.8, -53)])  # lines 0-3
sketch5.addConstraint([
    Sketcher.Constraint("Vertical", 0),
    Sketcher.Constraint("Horizontal", 2),
    Sketcher.Constraint("Parallel", 1, 3),
    Sketcher.Constraint("DistanceX", 0, 2, -1, 1, Q("18 mm")),
    Sketcher.Constraint("DistanceX", 1, 2, -1, 1, Q("32 mm")),
    Sketcher.Constraint("DistanceY", 1, 2, 0, 2, Q("10 mm")),
    Sketcher.Constraint("DistanceX", 2, 1, 2, 2, Q("5.1614 mm")),
    Sketcher.Constraint("DistanceY", 0, 2, -1, 1, Q("42.971 mm")),
])
pad3 = body.newObject("PartDesign::Pad", "Pad002")
pad3.Profile = sketch5
pad3.Length = 5
pad3.Midplane = True

# Sketch on XZ plane
sketch6 = body.newObject("Sketcher::SketchObject", "Sketch005")
sketch6.AttachmentSupport = (doc.getObject("XZ_Plane"), [""])
sketch6.MapMode = "FlatFace"
sketch6.AttachmentOffset = App.Placement(Vector(0, 0, 56.9711), App.Rotation())
sketch6.addGeometry([
    Part.Circle(Vector(-26, -10, 0), Vector(0, 0, 1), 1.5),
    Part.Circle(Vector(-26, 10, 0), Vector(0, 0, 1), 1.5),
], False)
sketch6.addConstraint([
    Sketcher.Constraint("Equal", 0, 1),
    Sketcher.Constraint("Symmetric", 0, 3, 1, 3, -1),
    Sketcher.Constraint("Diameter", 0, Q("3 mm")),
    Sketcher.Constraint("DistanceY", 0, 3, 1, 3, Q("20 mm")),
    Sketcher.Constraint("DistanceX", 0, 3, -1, 1, Q("26 mm")),
])
pocket3 = body.newObject("PartDesign::Pocket", "Pocket002")
pocket3.Profile = sketch6
pocket3.Length = 5

doc.recompute()
